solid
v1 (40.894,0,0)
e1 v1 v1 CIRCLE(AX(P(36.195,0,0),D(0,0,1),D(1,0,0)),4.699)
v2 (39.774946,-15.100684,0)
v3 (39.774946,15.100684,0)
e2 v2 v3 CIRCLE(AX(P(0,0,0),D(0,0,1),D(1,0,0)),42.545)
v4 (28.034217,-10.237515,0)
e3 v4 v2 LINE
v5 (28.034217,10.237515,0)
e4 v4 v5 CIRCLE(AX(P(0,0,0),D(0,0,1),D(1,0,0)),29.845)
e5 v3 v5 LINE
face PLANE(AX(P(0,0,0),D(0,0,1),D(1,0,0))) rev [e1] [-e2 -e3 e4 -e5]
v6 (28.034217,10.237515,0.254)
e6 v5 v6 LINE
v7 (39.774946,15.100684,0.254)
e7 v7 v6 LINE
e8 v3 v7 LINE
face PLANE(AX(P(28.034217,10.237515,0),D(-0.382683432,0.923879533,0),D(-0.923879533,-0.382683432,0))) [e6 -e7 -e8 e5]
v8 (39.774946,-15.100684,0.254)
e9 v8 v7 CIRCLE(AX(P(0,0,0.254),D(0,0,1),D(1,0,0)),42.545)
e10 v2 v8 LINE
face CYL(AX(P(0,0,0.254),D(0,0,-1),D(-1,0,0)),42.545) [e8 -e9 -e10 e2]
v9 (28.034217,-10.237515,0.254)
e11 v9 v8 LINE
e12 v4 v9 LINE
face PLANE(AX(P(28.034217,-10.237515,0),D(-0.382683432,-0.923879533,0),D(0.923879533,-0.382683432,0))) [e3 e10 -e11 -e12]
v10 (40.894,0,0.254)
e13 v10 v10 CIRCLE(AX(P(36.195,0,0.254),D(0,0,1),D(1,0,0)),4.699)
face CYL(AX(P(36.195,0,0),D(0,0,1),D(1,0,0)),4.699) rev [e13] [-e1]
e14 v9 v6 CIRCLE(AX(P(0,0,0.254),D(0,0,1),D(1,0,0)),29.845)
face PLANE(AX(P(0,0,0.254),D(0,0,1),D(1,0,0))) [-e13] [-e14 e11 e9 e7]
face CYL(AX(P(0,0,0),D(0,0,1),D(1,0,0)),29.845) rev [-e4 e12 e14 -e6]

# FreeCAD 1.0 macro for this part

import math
import FreeCAD as App
import Part
import Sketcher

V = App.Vector
Q = App.Units.Quantity

doc = App.newDocument("Part")
body = doc.addObject("PartDesign::Body", "Body")

# Sketch on XY plane
sketch1 = doc.addObject("Sketcher::SketchObject", "Sketch")
body.addObject(sketch1)
sketch1.AttachmentSupport = (doc.XY_Plane, [""])
sketch1.MapMode = "FlatFace"
sketch1.addGeometry(Part.Circle(V(0, 0, 0), V(0, 0, 1), 43), False)
sketch1.addConstraint(Sketcher.Constraint("Coincident", 0, 3, -1, 1))
sketch1.addConstraint(Sketcher.Constraint("Diameter", 0, Q("3.35 in")))
pad1 = doc.addObject("PartDesign::Pad", "Pad")
body.addObject(pad1)
pad1.Profile = sketch1
pad1.Length = Q("0.01 in")

# Sketch on XY plane
sketch2 = doc.addObject("Sketcher::SketchObject", "Sketch001")
body.addObject(sketch2)
sketch2.AttachmentSupport = (doc.XY_Plane, [""])
sketch2.MapMode = "FlatFace"
sketch2.AttachmentOffset = App.Placement(V(0, 0, 0.01 * 25.4), App.Rotation())
sketch2.addGeometry(Part.Circle(V(0, 0, 0), V(0, 0, 1), 30), False)
sketch2.addConstraint(Sketcher.Constraint("Coincident", 0, 3, -1, 1))
sketch2.addConstraint(Sketcher.Constraint("Diameter", 0, Q("2.35 in")))
pocket1 = doc.addObject("PartDesign::Pocket", "Pocket")
body.addObject(pocket1)
pocket1.Profile = sketch2
pocket1.Type = "ThroughAll"

# Sketch on XY plane
sketch3 = doc.addObject("Sketcher::SketchObject", "Sketch002")
body.addObject(sketch3)
sketch3.AttachmentSupport = (doc.XY_Plane, [""])
sketch3.MapMode = "FlatFace"
sketch3.AttachmentOffset = App.Placement(V(0, 0, 0.01 * 25.4), App.Rotation())
sketch3.addGeometry(Part.Circle(V(36.2, 0, 0), V(0, 0, 1), 4.7), False)
sketch3.addConstraint(Sketcher.Constraint("PointOnObject", 0, 3, -1))
sketch3.addConstraint(Sketcher.Constraint("Diameter", 0, Q("0.37 in")))
sketch3.addConstraint(Sketcher.Constraint("DistanceX", -1, 1, 0, 3, Q("1.425 in")))
pocket2 = doc.addObject("PartDesign::Pocket", "Pocket001")
body.addObject(pocket2)
pocket2.Profile = sketch3
pocket2.Type = "ThroughAll"

# Sketch on XY plane
sketch4 = doc.addObject("Sketcher::SketchObject", "Sketch003")
body.addObject(sketch4)
sketch4.AttachmentSupport = (doc.XY_Plane, [""])
sketch4.MapMode = "FlatFace"
sketch4.AttachmentOffset = App.Placement(V(0, 0, 0.01 * 25.4), App.Rotation())
sketch4.addGeometry(Part.LineSegment(V(-56, 56, 0), V(-56, -56, 0)), False)
sketch4.addGeometry(Part.LineSegment(V(-56, -56, 0), V(56, -56, 0)), False)
sketch4.addGeometry(Part.LineSegment(V(56, -56, 0), V(56, 56, 0)), False)
sketch4.addGeometry(Part.LineSegment(V(56, 56, 0), V(-56, 56, 0)), False)
sketch4.addGeometry(Part.LineSegment(V(40, -15, 0), V(28, -10, 0)), False)
sketch4.addGeometry(Part.ArcOfCircle(Part.Circle(V(0, 0, 0), V(0, 0, 1), 30), math.radians(-20), math.radians(20)), False)
sketch4.addGeometry(Part.LineSegment(V(28, 10, 0), V(40, 15, 0)), False)
sketch4.addGeometry(Part.ArcOfCircle(Part.Circle(V(0, 0, 0), V(0, 0, 1), 43), math.radians(-21), math.radians(21)), False)
sketch4.addConstraint(Sketcher.Constraint("Coincident", 0, 2, 1, 1))
sketch4.addConstraint(Sketcher.Constraint("Coincident", 1, 2, 2, 1))
sketch4.addConstraint(Sketcher.Constraint("Coincident", 2, 2, 3, 1))
sketch4.addConstraint(Sketcher.Constraint("Coincident", 3, 2, 0, 1))
sketch4.addConstraint(Sketcher.Constraint("Coincident", 4, 2, 5, 1))
sketch4.addConstraint(Sketcher.Constraint("Coincident", 5, 2, 6, 1))
sketch4.addConstraint(Sketcher.Constraint("Coincident", 6, 2, 7, 2))
sketch4.addConstraint(Sketcher.Constraint("Coincident", 7, 1, 4, 1))
sketch4.addConstraint(Sketcher.Constraint("Vertical", 0))
sketch4.addConstraint(Sketcher.Constraint("Horizontal", 1))
sketch4.addConstraint(Sketcher.Constraint("Vertical", 2))
sketch4.addConstraint(Sketcher.Constraint("Horizontal", 3))
sketch4.addConstraint(Sketcher.Constraint("Coincident", 5, 3, -1, 1))
sketch4.addConstraint(Sketcher.Constraint("Coincident", 7, 3, -1, 1))
sketch4.addConstraint(Sketcher.Constraint("Symmetric", 0, 2, 2, 2, -1, 1))
sketch4.addConstraint(Sketcher.Constraint("Vertical", 4, 2, 5, 2))
sketch4.addConstraint(Sketcher.Constraint("Vertical", 6, 2, 7, 1))
sketch4.addConstraint(Sketcher.Constraint("Equal", 3, 0))
sketch4.addConstraint(Sketcher.Constraint("Radius", 5, Q("1.175 in")))
sketch4.addConstraint(Sketcher.Constraint("Radius", 7, Q("1.675 in")))
sketch4.addConstraint(Sketcher.Constraint("Angle", 4, Q("157.5 deg")))
sketch4.addConstraint(Sketcher.Constraint("DistanceX", 1, 1, 1, 2, Q("111.158 mm")))
sketch4.addConstraint(Sketcher.Constraint("DistanceY", 4, 2, 6, 2, Q("25.338199 mm")))
pocket3 = doc.addObject("PartDesign::Pocket", "Pocket002")
body.addObject(pocket3)
pocket3.Profile = sketch4
pocket3.Type = "ThroughAll"

doc.recompute()
